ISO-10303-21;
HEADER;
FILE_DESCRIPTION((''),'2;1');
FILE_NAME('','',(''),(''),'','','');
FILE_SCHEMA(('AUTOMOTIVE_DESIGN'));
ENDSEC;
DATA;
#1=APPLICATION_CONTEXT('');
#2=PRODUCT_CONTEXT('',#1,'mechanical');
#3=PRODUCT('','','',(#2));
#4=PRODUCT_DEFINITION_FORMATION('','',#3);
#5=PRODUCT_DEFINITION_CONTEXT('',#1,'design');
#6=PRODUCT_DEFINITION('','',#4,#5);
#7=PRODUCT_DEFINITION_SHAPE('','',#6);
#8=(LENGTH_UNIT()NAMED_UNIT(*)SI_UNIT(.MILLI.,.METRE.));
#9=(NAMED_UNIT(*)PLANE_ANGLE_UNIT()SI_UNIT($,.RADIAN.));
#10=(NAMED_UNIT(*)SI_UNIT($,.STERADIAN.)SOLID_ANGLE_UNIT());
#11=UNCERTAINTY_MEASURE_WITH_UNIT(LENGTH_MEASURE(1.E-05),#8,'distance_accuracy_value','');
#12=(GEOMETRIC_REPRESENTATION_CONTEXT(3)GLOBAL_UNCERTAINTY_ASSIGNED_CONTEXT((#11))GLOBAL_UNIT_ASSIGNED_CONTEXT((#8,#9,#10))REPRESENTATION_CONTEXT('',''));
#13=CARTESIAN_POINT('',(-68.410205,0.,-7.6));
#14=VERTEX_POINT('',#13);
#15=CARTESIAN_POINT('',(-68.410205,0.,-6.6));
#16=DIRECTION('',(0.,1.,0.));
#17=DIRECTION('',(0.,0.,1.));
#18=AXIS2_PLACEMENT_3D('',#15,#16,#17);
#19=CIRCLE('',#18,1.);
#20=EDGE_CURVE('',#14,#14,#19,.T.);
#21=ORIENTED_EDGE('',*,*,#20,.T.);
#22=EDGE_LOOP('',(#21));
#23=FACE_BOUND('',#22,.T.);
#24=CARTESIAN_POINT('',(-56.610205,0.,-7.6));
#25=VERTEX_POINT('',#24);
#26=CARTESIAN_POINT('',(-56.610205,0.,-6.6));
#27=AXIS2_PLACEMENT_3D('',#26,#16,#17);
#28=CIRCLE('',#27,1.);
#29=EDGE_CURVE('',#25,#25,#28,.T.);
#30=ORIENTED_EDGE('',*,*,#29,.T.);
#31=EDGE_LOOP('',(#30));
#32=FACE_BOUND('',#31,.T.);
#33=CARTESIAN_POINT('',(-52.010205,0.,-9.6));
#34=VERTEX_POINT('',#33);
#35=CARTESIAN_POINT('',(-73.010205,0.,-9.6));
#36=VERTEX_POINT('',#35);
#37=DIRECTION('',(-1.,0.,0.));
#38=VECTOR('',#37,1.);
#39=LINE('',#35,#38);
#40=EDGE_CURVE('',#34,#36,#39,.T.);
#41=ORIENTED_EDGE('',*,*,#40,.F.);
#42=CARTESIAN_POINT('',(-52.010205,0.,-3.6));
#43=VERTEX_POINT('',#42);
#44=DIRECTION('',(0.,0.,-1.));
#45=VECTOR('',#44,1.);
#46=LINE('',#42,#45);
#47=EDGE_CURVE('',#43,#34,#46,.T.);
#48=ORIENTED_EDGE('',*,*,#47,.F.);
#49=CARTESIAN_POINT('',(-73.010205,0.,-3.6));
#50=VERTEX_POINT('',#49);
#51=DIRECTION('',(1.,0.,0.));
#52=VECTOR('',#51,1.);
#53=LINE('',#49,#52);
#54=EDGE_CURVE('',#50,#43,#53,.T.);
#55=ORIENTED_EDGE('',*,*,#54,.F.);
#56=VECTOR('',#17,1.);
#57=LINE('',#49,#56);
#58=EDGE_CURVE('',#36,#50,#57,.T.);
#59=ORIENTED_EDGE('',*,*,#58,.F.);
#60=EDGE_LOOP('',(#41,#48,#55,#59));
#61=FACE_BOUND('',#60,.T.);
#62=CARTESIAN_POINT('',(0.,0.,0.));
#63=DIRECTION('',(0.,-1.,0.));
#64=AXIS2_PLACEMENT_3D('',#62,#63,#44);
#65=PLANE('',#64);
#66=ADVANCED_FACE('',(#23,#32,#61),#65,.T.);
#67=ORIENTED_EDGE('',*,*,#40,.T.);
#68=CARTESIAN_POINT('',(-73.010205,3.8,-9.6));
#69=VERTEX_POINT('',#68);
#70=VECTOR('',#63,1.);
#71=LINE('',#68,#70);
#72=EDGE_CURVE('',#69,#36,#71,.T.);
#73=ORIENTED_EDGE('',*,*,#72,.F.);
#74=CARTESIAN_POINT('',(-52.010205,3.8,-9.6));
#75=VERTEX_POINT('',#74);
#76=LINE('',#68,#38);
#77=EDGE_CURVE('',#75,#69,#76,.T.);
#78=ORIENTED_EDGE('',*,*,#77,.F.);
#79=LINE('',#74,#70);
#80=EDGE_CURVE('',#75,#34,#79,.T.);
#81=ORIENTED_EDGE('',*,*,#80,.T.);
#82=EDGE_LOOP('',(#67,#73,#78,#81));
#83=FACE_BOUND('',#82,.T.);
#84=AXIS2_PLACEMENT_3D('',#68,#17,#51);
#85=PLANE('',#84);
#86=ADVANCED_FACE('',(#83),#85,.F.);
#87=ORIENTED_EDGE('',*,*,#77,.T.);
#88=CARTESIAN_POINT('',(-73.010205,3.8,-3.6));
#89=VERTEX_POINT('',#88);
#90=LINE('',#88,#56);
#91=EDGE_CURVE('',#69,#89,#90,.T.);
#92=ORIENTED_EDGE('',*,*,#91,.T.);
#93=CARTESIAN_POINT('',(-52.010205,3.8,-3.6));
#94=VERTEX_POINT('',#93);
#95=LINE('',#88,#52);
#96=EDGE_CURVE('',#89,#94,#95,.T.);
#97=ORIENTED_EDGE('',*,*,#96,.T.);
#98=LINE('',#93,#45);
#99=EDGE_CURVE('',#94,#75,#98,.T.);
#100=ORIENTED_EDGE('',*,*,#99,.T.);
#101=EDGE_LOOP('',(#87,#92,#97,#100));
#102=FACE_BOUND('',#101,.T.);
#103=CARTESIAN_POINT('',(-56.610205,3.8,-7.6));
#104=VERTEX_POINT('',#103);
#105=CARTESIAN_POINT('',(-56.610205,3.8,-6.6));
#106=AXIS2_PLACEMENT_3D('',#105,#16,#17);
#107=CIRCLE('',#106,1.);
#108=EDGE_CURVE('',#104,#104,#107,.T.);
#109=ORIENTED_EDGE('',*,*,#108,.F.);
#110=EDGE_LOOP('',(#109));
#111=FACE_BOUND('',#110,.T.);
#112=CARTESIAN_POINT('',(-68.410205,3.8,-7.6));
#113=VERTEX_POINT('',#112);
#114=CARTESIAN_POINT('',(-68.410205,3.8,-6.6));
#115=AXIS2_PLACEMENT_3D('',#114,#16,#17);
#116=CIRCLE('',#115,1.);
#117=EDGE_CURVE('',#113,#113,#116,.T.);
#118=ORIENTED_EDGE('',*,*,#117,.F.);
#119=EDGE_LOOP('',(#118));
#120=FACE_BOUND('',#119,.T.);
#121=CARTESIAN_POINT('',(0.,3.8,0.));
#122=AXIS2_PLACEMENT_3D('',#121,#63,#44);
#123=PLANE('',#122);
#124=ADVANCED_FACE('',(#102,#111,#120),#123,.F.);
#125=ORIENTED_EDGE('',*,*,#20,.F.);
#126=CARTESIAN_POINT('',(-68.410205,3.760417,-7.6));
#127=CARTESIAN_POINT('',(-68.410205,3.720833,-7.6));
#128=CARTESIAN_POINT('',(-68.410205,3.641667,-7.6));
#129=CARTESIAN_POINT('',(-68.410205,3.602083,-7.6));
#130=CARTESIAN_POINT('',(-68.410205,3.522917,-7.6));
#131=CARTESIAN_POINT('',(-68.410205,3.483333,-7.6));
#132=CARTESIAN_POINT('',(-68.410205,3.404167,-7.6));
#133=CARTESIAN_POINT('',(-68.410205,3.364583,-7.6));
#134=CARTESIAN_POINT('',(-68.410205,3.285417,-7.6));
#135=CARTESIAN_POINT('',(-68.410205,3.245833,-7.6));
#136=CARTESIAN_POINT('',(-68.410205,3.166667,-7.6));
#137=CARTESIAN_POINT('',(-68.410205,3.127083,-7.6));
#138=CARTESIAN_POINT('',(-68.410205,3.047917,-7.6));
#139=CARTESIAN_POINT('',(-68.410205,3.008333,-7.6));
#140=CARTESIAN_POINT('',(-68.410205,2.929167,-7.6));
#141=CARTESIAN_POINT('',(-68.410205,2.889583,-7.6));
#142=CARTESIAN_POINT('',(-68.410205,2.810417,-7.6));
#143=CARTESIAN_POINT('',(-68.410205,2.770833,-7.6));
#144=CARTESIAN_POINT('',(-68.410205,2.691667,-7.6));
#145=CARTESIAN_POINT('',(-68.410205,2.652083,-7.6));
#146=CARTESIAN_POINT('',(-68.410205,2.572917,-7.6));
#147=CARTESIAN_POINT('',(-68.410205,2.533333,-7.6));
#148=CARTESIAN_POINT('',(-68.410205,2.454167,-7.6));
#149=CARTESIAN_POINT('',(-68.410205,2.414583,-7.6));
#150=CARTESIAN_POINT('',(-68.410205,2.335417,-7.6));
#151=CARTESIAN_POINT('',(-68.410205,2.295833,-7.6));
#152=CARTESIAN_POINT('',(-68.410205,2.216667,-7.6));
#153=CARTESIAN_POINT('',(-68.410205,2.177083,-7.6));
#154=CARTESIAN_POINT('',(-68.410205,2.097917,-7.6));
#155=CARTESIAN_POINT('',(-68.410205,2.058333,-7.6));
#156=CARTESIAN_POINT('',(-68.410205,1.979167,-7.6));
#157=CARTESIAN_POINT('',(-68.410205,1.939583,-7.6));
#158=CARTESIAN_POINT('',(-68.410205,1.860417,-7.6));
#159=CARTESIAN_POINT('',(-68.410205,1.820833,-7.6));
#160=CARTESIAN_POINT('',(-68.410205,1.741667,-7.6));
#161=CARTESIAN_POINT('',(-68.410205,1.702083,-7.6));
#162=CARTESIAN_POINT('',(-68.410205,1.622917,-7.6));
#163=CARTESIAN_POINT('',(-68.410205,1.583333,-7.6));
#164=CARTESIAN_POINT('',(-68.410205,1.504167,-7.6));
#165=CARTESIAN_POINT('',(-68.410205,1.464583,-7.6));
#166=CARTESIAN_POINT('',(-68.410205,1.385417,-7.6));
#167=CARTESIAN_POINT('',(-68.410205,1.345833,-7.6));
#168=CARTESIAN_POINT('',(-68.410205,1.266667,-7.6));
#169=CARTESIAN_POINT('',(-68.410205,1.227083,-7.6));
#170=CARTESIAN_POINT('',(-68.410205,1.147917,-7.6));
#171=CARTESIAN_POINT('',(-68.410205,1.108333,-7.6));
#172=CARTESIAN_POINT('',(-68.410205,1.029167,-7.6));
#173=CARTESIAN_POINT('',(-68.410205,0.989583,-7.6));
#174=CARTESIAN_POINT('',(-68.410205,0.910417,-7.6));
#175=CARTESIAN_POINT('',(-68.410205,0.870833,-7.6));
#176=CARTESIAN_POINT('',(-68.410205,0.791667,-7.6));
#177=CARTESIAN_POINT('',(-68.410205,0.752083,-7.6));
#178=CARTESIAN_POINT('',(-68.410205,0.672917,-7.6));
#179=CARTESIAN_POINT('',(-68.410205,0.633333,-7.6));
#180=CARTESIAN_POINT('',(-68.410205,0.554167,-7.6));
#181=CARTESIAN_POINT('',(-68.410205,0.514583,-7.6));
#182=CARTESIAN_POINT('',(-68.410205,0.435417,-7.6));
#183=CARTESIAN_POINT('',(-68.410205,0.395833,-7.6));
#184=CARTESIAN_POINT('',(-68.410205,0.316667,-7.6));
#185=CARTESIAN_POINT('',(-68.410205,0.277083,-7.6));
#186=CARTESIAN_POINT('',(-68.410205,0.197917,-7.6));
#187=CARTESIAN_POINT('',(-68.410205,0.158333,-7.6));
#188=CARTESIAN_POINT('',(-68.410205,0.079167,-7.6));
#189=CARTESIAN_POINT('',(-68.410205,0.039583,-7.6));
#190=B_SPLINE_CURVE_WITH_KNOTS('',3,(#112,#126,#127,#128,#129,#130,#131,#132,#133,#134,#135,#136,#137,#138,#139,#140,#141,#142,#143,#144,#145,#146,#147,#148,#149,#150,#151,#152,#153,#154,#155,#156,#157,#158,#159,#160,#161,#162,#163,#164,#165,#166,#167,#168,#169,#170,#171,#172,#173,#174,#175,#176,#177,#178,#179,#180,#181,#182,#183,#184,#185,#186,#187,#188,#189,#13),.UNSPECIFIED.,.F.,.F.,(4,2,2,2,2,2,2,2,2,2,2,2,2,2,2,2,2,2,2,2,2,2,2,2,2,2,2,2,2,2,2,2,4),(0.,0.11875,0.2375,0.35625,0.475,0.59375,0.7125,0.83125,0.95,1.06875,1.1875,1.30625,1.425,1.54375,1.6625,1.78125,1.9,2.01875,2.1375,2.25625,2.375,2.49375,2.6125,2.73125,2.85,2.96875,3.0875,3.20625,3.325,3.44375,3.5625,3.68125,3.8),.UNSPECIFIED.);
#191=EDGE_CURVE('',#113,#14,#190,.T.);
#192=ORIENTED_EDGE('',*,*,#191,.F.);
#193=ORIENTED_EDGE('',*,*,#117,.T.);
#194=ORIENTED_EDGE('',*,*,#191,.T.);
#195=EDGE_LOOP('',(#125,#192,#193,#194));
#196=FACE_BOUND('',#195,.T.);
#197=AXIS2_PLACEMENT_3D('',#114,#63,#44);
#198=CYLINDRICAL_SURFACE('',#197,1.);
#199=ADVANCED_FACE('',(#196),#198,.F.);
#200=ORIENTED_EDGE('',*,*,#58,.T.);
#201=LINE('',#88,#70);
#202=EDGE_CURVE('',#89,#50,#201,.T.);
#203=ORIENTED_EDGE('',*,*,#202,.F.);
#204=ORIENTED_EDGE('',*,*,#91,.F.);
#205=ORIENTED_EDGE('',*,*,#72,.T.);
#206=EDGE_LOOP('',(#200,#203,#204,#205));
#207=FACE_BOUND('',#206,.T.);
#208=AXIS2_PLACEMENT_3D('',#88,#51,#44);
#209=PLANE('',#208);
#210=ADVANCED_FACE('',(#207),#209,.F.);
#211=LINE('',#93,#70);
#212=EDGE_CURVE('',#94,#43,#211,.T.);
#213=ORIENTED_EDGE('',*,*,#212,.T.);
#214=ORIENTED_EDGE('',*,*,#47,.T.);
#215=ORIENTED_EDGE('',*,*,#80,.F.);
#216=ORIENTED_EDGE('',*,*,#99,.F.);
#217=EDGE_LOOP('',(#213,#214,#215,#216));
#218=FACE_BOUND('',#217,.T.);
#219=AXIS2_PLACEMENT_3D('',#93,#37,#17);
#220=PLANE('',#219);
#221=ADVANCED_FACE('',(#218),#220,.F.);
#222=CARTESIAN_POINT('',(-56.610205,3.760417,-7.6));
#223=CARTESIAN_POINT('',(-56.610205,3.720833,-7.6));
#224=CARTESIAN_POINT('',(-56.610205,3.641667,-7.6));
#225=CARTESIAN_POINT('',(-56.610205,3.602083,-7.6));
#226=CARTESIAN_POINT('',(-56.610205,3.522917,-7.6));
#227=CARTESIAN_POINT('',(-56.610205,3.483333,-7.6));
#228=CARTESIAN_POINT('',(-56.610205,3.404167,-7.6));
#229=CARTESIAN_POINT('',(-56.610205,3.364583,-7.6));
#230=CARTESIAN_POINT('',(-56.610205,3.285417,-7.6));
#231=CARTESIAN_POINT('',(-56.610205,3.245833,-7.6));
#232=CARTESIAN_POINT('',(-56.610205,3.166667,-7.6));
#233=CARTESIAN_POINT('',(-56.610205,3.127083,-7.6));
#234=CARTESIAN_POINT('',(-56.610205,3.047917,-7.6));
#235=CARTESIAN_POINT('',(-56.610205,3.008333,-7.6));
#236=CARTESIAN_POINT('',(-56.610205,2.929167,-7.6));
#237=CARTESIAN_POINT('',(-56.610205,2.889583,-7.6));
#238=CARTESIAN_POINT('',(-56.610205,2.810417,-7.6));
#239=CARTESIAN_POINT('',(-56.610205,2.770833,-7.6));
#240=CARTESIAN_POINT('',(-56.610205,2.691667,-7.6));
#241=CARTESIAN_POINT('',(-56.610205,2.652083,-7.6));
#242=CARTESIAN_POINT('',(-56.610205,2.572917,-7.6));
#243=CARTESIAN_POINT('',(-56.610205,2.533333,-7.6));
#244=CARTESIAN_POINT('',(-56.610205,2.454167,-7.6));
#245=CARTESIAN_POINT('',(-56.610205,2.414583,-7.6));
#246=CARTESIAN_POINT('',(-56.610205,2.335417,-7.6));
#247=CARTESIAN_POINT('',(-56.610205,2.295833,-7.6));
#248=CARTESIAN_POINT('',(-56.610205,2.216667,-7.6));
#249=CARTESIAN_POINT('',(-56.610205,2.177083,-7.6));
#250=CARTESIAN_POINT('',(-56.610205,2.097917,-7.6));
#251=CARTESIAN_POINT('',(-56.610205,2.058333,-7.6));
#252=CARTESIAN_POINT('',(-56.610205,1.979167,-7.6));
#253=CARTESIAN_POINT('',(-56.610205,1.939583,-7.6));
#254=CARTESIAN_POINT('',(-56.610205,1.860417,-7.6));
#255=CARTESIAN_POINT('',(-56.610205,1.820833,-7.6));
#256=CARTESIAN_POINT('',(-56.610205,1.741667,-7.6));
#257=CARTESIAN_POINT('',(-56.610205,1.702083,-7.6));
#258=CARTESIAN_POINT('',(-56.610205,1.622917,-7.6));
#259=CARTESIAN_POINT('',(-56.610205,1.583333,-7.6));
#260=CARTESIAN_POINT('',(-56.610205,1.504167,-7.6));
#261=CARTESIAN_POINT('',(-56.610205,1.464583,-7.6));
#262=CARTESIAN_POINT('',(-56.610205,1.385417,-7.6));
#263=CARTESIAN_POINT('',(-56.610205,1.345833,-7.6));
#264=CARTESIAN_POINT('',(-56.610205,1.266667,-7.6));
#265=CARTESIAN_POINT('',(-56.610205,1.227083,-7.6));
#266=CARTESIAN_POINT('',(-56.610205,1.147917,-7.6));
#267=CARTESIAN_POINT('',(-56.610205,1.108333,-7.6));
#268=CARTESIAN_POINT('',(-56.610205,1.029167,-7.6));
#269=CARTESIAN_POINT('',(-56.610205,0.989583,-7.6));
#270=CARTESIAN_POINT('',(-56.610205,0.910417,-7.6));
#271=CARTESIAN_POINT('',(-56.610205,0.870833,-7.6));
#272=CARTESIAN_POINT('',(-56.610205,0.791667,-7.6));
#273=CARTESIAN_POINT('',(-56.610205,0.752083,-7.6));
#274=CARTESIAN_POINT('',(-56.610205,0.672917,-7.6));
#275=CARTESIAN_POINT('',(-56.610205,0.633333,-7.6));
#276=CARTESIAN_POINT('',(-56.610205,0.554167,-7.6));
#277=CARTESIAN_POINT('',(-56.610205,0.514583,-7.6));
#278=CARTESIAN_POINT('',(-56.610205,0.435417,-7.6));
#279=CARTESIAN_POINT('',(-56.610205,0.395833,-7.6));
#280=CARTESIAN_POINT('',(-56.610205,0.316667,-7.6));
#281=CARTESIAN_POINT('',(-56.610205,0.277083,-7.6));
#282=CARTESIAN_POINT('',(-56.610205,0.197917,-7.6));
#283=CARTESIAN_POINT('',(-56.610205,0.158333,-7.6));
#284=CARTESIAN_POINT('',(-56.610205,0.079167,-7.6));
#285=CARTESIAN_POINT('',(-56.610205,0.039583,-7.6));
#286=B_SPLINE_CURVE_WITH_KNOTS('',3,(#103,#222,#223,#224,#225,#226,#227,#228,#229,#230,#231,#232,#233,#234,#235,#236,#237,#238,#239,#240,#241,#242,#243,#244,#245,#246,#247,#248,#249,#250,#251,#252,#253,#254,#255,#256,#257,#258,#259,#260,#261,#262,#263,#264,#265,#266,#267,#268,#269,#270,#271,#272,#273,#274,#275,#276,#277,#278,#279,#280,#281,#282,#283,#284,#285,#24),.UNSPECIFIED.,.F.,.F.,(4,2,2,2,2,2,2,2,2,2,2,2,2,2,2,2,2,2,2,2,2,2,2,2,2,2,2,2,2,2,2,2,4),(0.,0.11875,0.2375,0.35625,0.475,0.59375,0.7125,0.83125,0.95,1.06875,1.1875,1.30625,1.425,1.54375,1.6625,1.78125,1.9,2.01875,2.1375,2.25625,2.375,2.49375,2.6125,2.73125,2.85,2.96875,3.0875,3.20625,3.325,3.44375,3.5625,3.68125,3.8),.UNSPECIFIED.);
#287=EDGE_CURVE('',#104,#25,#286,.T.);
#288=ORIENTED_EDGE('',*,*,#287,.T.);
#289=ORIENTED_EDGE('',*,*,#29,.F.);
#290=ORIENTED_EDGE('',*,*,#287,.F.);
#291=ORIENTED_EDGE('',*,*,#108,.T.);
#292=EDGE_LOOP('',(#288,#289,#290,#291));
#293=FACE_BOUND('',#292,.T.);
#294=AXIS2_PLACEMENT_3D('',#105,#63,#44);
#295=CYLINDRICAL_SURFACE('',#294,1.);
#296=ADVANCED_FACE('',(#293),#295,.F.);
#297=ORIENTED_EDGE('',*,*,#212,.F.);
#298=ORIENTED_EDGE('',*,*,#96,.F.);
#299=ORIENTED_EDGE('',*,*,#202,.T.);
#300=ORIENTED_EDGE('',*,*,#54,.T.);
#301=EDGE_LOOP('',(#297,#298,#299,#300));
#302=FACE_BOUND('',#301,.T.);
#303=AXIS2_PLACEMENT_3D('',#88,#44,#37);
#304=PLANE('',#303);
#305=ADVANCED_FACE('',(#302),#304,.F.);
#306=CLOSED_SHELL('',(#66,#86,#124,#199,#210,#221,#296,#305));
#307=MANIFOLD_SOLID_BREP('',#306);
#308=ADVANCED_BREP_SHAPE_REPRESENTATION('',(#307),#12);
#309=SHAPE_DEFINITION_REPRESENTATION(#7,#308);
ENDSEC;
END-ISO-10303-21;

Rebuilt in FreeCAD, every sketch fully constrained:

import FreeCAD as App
import Part
import Sketcher
from FreeCAD import Vector


def add_polygon(sketch, points):
    """Adds a closed chain of lines whose ends are joined by coincident constraints."""
    first, n = sketch.GeometryCount, len(points)
    for a, b in zip(points, points[1:] + points[:1]):
        sketch.addGeometry(Part.LineSegment(App.Vector(*a, 0), App.Vector(*b, 0)), False)
    for i in range(n):
        sketch.addConstraint(Sketcher.Constraint("Coincident", first + i, 2, first + (i + 1) % n, 1))

doc = App.newDocument("Part")
body = doc.addObject("PartDesign::Body", "Body")

sketch1 = body.newObject("Sketcher::SketchObject", "Sketch")
sketch1.AttachmentSupport = (doc.getObject("XZ_Plane"), [""])
sketch1.MapMode = "FlatFace"
add_polygon(sketch1, [(-73, -9.6), (-73, -3.6), (-52, -3.6), (-52, -9.6)])
sketch1.addGeometry(Part.Circle(Vector(-68.4, -6.6, 0), Vector(0, 0, 1), 1), False)
sketch1.addGeometry(Part.Circle(Vector(-56.6, -6.6, 0), Vector(0, 0, 1), 1), False)
sketch1.addConstraint([
    Sketcher.Constraint("Vertical", 0),
    Sketcher.Constraint("Horizontal", 1),
    Sketcher.Constraint("Vertical", 2),
    Sketcher.Constraint("Horizontal", 3),
    Sketcher.Constraint("Equal", 4, 5),
    Sketcher.Constraint("Horizontal", 4, 3, 5, 3),
    Sketcher.Constraint("Diameter", 4, 2.0),
    Sketcher.Constraint("DistanceX", 1, 1, 1, 2, 21.0),
    Sketcher.Constraint("DistanceY", 0, 1, 0, 2, 6.0),
    Sketcher.Constraint("DistanceY", 4, 3, 0, 2, 3.0),
    Sketcher.Constraint("DistanceY", 4, 3, -1, 1, 6.6),
    Sketcher.Constraint("DistanceX", 4, 3, 5, 3, 11.8),
    Sketcher.Constraint("DistanceX", 0, 2, 4, 3, 4.6),
    Sketcher.Constraint("DistanceX", 4, 3, -1, 1, 68.410205),
])
pad1 = body.newObject("PartDesign::Pad", "Pad")
pad1.Profile = sketch1
pad1.Length = 3.8
pad1.Reversed = True

doc.recompute()
